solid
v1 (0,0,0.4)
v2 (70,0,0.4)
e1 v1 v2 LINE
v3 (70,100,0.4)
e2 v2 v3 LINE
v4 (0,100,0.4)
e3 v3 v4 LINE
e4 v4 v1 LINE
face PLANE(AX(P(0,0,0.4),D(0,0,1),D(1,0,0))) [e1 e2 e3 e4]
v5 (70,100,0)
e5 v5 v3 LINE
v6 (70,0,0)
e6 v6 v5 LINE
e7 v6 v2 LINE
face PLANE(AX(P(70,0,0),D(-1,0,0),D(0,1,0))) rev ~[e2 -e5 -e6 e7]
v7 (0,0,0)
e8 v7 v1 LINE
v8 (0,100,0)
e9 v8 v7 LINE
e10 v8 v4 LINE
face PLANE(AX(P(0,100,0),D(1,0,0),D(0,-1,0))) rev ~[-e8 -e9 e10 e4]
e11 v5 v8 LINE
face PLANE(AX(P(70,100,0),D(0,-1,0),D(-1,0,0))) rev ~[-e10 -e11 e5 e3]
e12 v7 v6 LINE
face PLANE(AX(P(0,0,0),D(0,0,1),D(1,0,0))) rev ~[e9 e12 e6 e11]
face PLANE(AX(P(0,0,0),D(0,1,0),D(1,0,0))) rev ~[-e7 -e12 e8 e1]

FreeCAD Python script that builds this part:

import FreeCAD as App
import Part
import Sketcher
from FreeCAD import Vector
Q = App.Units.Quantity


def add_polygon(sketch, points):
    """Adds a closed chain of lines whose ends are joined by coincident constraints."""
    first, n = sketch.GeometryCount, len(points)
    for a, b in zip(points, points[1:] + points[:1]):
        sketch.addGeometry(Part.LineSegment(App.Vector(*a, 0), App.Vector(*b, 0)), False)
    for i in range(n):
        sketch.addConstraint(Sketcher.Constraint("Coincident", first + i, 2, first + (i + 1) % n, 1))

doc = App.newDocument("Part")
body = doc.addObject("PartDesign::Body", "Body")

# Sketch on XY plane
sketch1 = body.newObject("Sketcher::SketchObject", "Sketch")
sketch1.AttachmentSupport = (doc.getObject("XY_Plane"), [""])
sketch1.MapMode = "FlatFace"
add_polygon(sketch1, [(0, 100), (0, 0), (70, 0), (70, 100)])  # lines 0-3
sketch1.addConstraint(Sketcher.Constraint("Vertical", 0))
sketch1.addConstraint(Sketcher.Constraint("Horizontal", 1))
sketch1.addConstraint(Sketcher.Constraint("Vertical", 2))
sketch1.addConstraint(Sketcher.Constraint("Horizontal", 3))
sketch1.addConstraint(Sketcher.Constraint("Coincident", 0, 2, -1, 1))
sketch1.addConstraint(Sketcher.Constraint("DistanceX", 1, 1, 1, 2, Q("70 mm")))
sketch1.addConstraint(Sketcher.Constraint("DistanceY", 0, 2, 0, 1, Q("100 mm")))
pad1 = body.newObject("PartDesign::Pad", "Pad")
pad1.Profile = sketch1
pad1.Length = 0.4

doc.recompute()
